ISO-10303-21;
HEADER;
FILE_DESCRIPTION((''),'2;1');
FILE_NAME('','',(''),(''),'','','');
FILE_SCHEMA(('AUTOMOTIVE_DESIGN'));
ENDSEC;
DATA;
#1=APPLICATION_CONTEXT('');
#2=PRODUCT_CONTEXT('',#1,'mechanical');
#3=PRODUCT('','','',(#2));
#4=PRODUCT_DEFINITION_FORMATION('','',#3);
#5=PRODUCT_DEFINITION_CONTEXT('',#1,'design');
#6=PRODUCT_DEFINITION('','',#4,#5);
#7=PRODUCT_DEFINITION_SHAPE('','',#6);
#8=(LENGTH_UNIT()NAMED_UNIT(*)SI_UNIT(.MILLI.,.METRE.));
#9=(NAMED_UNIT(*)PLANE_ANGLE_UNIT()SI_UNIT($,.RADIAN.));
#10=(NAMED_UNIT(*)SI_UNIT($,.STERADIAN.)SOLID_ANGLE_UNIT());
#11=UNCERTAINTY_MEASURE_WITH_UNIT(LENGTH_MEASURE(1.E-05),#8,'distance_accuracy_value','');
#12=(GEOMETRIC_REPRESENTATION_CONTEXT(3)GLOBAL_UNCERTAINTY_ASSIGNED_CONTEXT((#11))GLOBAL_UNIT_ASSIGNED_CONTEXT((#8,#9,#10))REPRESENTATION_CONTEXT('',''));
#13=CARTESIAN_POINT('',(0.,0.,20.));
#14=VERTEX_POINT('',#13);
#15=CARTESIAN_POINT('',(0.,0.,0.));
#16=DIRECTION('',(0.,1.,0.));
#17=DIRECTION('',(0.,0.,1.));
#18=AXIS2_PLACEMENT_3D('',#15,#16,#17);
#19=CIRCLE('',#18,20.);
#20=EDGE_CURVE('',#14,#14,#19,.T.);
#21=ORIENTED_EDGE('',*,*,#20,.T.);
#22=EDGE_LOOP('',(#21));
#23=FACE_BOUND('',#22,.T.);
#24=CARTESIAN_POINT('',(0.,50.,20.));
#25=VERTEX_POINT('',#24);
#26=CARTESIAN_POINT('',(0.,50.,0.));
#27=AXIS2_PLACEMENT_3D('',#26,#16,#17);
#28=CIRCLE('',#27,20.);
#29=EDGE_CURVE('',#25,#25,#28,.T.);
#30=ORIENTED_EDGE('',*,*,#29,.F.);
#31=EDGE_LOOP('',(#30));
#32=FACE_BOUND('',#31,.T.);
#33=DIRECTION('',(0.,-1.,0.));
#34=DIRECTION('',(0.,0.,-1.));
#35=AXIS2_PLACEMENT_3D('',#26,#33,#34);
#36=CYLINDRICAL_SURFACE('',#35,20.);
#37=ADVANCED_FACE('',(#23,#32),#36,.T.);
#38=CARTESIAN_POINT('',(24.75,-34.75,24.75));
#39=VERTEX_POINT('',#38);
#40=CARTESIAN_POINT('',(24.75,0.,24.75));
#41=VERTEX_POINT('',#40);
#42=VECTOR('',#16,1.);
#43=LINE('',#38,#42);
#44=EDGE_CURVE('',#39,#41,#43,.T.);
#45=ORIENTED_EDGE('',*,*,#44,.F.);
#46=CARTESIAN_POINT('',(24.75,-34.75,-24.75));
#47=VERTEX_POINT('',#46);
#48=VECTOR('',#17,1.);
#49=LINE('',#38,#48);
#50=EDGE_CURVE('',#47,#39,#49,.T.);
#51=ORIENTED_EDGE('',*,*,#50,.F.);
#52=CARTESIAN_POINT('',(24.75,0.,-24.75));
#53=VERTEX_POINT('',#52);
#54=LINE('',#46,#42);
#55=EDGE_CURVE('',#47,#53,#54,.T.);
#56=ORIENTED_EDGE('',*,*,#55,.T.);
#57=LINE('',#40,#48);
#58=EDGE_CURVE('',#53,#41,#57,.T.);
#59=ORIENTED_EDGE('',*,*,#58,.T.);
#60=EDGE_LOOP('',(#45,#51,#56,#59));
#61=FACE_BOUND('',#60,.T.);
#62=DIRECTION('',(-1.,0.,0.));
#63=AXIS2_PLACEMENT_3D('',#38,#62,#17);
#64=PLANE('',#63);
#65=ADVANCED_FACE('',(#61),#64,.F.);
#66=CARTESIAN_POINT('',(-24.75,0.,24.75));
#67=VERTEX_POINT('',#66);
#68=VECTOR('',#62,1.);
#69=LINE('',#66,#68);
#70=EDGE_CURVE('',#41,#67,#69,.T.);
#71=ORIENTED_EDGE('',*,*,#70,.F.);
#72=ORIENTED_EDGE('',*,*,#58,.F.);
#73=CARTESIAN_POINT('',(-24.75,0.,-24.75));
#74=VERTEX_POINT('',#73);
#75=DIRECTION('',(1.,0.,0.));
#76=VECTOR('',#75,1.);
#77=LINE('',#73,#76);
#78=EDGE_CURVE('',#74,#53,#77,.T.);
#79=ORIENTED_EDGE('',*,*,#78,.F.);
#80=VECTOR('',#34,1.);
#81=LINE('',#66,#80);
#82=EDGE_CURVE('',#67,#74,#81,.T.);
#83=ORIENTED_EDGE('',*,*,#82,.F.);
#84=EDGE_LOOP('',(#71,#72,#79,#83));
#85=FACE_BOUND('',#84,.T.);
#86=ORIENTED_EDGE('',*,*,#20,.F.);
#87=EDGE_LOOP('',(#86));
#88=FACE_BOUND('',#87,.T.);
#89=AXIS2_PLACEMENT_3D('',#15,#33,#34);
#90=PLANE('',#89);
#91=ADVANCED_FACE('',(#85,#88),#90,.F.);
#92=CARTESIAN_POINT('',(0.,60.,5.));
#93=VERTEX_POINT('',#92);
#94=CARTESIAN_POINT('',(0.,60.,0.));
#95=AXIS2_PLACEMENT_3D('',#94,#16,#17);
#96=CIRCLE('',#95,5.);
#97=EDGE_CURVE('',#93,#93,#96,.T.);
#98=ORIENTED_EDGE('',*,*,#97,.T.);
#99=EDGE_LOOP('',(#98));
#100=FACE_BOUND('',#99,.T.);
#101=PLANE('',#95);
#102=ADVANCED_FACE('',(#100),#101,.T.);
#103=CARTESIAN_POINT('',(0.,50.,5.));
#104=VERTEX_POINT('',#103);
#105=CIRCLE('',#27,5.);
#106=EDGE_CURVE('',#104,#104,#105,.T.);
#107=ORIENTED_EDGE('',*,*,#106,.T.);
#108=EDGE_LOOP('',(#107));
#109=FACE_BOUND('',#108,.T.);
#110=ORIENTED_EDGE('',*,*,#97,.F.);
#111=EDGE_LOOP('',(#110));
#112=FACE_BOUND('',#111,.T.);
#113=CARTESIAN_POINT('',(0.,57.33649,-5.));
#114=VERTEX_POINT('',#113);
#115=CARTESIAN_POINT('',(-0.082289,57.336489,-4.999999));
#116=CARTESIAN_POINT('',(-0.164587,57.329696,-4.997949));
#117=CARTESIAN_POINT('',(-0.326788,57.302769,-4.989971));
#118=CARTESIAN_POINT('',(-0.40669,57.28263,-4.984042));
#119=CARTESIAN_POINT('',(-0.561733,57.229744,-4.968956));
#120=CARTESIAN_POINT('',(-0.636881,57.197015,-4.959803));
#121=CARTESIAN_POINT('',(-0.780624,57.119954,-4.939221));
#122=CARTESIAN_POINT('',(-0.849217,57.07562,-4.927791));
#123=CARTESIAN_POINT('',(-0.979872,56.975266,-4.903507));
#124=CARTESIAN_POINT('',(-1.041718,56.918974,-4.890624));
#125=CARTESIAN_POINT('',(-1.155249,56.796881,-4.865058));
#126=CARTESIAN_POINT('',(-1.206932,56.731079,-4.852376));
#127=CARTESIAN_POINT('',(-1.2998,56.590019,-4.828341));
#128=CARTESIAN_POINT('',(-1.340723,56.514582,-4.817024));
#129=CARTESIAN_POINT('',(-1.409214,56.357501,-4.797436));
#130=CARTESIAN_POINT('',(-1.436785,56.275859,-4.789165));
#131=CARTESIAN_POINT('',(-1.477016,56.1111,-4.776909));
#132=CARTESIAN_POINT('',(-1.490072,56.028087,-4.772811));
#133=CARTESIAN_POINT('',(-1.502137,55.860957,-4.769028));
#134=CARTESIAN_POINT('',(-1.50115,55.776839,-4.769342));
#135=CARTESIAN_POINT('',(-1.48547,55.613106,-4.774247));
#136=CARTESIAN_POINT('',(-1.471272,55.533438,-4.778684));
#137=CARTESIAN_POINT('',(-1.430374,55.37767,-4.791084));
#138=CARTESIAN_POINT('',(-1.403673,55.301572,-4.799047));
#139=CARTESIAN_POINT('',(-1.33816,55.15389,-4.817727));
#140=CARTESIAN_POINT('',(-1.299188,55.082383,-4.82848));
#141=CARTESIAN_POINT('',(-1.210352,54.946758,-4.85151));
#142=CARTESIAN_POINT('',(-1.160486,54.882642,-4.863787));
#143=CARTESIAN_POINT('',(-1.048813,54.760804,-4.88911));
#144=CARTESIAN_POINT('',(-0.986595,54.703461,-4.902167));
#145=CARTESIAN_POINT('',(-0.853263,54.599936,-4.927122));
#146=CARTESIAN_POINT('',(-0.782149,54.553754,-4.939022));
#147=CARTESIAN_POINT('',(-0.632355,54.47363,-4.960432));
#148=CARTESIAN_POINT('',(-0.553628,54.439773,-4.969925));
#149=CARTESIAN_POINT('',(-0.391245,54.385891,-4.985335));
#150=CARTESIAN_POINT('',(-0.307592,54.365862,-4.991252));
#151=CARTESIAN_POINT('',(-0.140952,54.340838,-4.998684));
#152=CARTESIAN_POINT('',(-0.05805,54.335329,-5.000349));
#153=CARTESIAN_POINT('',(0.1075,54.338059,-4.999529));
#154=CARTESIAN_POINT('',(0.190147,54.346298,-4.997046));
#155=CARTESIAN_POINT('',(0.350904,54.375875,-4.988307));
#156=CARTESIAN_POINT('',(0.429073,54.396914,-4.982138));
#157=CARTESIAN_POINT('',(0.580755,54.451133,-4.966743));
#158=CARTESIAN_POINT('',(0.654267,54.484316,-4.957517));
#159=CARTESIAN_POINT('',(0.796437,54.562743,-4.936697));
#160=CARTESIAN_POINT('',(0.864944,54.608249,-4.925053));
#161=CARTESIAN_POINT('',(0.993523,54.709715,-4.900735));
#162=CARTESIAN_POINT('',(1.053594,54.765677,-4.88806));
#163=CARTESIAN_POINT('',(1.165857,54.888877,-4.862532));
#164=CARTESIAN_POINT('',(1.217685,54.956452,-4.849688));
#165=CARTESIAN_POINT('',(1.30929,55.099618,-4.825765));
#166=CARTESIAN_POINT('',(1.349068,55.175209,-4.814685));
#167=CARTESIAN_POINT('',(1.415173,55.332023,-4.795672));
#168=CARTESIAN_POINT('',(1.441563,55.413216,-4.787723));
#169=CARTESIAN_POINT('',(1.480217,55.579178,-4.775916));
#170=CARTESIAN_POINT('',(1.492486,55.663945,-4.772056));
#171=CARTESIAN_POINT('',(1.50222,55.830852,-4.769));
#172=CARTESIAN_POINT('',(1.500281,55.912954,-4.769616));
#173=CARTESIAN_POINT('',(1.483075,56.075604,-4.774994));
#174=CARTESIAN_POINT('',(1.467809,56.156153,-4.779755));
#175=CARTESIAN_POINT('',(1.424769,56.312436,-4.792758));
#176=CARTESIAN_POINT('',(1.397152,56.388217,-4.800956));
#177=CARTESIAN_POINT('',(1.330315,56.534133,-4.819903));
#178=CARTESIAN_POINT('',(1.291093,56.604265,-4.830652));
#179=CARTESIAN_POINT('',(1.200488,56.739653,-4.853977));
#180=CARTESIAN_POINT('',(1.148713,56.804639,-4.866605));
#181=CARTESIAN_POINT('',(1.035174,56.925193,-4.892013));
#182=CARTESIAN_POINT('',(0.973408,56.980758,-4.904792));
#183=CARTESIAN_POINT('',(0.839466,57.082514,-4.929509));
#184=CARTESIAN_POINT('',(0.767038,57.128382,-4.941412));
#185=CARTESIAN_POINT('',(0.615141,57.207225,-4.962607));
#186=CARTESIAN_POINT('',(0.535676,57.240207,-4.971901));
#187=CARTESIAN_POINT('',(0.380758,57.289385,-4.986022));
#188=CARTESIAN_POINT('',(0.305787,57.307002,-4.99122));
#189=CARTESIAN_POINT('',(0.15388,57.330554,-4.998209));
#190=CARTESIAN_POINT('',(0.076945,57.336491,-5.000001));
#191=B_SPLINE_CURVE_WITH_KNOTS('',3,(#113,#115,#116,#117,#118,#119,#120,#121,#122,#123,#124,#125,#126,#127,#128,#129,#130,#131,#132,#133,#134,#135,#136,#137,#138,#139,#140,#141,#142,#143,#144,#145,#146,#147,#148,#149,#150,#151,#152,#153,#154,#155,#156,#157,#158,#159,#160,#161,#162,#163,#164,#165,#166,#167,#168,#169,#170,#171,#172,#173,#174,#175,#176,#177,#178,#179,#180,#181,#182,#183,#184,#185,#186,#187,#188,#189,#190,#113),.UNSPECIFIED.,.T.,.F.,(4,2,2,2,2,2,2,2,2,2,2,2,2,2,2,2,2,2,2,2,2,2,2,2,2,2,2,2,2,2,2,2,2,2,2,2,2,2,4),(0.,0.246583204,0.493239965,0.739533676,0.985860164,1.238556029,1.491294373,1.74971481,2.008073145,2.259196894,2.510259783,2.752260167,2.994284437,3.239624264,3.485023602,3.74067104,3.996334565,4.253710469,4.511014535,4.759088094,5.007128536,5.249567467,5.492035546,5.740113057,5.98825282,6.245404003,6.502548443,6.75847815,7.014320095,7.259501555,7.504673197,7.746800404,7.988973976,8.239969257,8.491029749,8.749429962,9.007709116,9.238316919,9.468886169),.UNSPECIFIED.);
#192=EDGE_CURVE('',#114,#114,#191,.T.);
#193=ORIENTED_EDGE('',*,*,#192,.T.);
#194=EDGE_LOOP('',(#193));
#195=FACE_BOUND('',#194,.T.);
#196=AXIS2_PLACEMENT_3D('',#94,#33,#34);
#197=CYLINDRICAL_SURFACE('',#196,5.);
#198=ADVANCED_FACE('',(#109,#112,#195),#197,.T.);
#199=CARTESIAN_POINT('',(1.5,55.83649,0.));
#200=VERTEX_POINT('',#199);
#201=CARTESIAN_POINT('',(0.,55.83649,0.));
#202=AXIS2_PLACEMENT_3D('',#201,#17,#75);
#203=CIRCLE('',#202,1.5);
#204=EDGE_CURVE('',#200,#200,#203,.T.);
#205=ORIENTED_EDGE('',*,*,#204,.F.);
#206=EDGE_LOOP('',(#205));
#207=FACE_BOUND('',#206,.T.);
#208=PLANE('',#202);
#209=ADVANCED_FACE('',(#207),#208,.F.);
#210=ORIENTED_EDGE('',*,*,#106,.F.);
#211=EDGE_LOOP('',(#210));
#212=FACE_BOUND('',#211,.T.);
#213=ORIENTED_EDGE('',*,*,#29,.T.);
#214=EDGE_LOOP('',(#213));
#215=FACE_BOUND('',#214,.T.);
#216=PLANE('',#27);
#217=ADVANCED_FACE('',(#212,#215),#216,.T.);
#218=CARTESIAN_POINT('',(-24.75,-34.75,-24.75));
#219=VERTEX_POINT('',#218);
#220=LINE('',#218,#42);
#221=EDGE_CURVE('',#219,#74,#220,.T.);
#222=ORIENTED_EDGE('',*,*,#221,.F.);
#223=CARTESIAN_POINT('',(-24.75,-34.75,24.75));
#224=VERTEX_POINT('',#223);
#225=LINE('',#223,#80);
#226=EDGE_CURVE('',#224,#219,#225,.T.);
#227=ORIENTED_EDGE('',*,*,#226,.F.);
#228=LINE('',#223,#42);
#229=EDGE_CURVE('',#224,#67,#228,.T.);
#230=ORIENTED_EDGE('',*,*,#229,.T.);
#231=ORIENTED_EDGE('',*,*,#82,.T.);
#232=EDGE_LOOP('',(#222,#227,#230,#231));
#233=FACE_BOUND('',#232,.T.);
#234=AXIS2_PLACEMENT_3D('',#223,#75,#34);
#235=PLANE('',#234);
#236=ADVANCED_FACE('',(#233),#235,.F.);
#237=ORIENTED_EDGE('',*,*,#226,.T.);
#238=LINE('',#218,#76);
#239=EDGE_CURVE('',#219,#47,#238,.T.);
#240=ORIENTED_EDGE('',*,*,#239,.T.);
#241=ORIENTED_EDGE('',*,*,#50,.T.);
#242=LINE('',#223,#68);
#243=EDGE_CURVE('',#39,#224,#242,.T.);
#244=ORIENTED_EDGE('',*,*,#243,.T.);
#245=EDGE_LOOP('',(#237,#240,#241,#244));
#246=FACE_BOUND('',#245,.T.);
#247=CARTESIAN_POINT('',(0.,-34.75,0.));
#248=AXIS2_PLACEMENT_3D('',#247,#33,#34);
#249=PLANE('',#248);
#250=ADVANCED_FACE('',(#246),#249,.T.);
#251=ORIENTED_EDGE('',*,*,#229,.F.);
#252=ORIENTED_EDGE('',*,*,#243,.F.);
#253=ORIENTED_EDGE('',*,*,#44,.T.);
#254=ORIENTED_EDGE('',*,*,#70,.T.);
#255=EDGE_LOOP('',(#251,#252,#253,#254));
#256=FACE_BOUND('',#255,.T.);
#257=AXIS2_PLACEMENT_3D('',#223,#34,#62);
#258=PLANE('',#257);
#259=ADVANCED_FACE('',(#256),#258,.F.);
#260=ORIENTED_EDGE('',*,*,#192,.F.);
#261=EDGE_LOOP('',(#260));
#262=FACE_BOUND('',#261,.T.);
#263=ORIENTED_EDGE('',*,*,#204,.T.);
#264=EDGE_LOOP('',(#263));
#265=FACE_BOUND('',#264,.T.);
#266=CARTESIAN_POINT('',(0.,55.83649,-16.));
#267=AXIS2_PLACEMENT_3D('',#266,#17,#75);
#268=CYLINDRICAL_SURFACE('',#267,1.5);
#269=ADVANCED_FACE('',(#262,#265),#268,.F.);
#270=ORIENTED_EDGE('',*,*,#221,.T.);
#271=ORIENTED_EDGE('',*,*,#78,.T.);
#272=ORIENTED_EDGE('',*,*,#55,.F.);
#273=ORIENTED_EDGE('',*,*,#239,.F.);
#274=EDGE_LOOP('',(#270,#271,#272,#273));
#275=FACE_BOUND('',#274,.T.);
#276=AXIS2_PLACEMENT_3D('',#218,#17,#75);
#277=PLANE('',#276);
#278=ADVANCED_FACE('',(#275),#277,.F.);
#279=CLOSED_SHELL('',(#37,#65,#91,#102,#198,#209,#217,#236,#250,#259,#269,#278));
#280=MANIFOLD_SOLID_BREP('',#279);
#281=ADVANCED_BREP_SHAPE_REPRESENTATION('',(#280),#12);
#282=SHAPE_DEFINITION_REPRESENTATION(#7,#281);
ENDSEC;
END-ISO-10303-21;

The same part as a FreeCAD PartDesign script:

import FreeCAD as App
import Part
import Sketcher

V = App.Vector


def add_polygon(sketch, points):
    """Adds a closed chain of lines whose ends are joined by coincident constraints."""
    first, n = sketch.GeometryCount, len(points)
    for a, b in zip(points, points[1:] + points[:1]):
        sketch.addGeometry(Part.LineSegment(App.Vector(*a, 0), App.Vector(*b, 0)), False)
    for i in range(n):
        sketch.addConstraint(Sketcher.Constraint("Coincident", first + i, 2, first + (i + 1) % n, 1))

doc = App.newDocument("Part")
body = doc.addObject("PartDesign::Body", "Body")

sketch1 = doc.addObject("Sketcher::SketchObject", "Sketch")
body.addObject(sketch1)
sketch1.AttachmentSupport = (doc.XZ_Plane, [""])
sketch1.MapMode = "FlatFace"
sketch1.addGeometry(Part.Circle(V(0, 0, 0), V(0, 0, 1), 20), False)
sketch1.addConstraint([
    Sketcher.Constraint("Coincident", 0, 3, -1, 1),
    Sketcher.Constraint("Diameter", 0, 40.0),
])
pad1 = doc.addObject("PartDesign::Pad", "Pad")
body.addObject(pad1)
pad1.Profile = sketch1
pad1.Length = 50
pad1.Reversed = True

sketch2 = doc.addObject("Sketcher::SketchObject", "Sketch001")
body.addObject(sketch2)
sketch2.AttachmentSupport = (doc.XZ_Plane, [""])
sketch2.MapMode = "FlatFace"
sketch2.AttachmentOffset = App.Placement(V(0, 0, -50), App.Rotation())
sketch2.addGeometry(Part.Circle(V(0, 0, 0), V(0, 0, 1), 5), False)
sketch2.addConstraint([
    Sketcher.Constraint("Coincident", 0, 3, -1, 1),
    Sketcher.Constraint("Diameter", 0, 10.0),
])
pad2 = doc.addObject("PartDesign::Pad", "Pad001")
body.addObject(pad2)
pad2.Profile = sketch2
pad2.Length = 10
pad2.Reversed = True

sketch3 = doc.addObject("Sketcher::SketchObject", "Sketch002")
body.addObject(sketch3)
sketch3.AttachmentSupport = (doc.XY_Plane, [""])
sketch3.MapMode = "FlatFace"
sketch3.addGeometry(Part.Circle(V(0, 55.8, 0), V(0, 0, 1), 1.5), False)
sketch3.addConstraint([
    Sketcher.Constraint("PointOnObject", 0, 3, -2),
    Sketcher.Constraint("Diameter", 0, 3.0),
    Sketcher.Constraint("DistanceY", -1, 1, 0, 3, 55.83649),
])
pocket1 = doc.addObject("PartDesign::Pocket", "Pocket")
body.addObject(pocket1)
pocket1.Profile = sketch3
pocket1.Length = 16

sketch4 = doc.addObject("Sketcher::SketchObject", "Sketch003")
body.addObject(sketch4)
sketch4.AttachmentSupport = (doc.XZ_Plane, [""])
sketch4.MapMode = "FlatFace"
add_polygon(sketch4, [(25, -25), (25, 25), (-25, 25), (-25, -25)])
sketch4.addConstraint([
    Sketcher.Constraint("Vertical", 0),
    Sketcher.Constraint("Horizontal", 1),
    Sketcher.Constraint("Vertical", 2),
    Sketcher.Constraint("Horizontal", 3),
    Sketcher.Constraint("Symmetric", 0, 2, 2, 2, -1, 1),
    Sketcher.Constraint("Equal", 3, 0),
    Sketcher.Constraint("DistanceX", 1, 2, 1, 1, 49.5),
])
pad3 = doc.addObject("PartDesign::Pad", "Pad002")
body.addObject(pad3)
pad3.Profile = sketch4
pad3.Length = 34.75

doc.recompute()
